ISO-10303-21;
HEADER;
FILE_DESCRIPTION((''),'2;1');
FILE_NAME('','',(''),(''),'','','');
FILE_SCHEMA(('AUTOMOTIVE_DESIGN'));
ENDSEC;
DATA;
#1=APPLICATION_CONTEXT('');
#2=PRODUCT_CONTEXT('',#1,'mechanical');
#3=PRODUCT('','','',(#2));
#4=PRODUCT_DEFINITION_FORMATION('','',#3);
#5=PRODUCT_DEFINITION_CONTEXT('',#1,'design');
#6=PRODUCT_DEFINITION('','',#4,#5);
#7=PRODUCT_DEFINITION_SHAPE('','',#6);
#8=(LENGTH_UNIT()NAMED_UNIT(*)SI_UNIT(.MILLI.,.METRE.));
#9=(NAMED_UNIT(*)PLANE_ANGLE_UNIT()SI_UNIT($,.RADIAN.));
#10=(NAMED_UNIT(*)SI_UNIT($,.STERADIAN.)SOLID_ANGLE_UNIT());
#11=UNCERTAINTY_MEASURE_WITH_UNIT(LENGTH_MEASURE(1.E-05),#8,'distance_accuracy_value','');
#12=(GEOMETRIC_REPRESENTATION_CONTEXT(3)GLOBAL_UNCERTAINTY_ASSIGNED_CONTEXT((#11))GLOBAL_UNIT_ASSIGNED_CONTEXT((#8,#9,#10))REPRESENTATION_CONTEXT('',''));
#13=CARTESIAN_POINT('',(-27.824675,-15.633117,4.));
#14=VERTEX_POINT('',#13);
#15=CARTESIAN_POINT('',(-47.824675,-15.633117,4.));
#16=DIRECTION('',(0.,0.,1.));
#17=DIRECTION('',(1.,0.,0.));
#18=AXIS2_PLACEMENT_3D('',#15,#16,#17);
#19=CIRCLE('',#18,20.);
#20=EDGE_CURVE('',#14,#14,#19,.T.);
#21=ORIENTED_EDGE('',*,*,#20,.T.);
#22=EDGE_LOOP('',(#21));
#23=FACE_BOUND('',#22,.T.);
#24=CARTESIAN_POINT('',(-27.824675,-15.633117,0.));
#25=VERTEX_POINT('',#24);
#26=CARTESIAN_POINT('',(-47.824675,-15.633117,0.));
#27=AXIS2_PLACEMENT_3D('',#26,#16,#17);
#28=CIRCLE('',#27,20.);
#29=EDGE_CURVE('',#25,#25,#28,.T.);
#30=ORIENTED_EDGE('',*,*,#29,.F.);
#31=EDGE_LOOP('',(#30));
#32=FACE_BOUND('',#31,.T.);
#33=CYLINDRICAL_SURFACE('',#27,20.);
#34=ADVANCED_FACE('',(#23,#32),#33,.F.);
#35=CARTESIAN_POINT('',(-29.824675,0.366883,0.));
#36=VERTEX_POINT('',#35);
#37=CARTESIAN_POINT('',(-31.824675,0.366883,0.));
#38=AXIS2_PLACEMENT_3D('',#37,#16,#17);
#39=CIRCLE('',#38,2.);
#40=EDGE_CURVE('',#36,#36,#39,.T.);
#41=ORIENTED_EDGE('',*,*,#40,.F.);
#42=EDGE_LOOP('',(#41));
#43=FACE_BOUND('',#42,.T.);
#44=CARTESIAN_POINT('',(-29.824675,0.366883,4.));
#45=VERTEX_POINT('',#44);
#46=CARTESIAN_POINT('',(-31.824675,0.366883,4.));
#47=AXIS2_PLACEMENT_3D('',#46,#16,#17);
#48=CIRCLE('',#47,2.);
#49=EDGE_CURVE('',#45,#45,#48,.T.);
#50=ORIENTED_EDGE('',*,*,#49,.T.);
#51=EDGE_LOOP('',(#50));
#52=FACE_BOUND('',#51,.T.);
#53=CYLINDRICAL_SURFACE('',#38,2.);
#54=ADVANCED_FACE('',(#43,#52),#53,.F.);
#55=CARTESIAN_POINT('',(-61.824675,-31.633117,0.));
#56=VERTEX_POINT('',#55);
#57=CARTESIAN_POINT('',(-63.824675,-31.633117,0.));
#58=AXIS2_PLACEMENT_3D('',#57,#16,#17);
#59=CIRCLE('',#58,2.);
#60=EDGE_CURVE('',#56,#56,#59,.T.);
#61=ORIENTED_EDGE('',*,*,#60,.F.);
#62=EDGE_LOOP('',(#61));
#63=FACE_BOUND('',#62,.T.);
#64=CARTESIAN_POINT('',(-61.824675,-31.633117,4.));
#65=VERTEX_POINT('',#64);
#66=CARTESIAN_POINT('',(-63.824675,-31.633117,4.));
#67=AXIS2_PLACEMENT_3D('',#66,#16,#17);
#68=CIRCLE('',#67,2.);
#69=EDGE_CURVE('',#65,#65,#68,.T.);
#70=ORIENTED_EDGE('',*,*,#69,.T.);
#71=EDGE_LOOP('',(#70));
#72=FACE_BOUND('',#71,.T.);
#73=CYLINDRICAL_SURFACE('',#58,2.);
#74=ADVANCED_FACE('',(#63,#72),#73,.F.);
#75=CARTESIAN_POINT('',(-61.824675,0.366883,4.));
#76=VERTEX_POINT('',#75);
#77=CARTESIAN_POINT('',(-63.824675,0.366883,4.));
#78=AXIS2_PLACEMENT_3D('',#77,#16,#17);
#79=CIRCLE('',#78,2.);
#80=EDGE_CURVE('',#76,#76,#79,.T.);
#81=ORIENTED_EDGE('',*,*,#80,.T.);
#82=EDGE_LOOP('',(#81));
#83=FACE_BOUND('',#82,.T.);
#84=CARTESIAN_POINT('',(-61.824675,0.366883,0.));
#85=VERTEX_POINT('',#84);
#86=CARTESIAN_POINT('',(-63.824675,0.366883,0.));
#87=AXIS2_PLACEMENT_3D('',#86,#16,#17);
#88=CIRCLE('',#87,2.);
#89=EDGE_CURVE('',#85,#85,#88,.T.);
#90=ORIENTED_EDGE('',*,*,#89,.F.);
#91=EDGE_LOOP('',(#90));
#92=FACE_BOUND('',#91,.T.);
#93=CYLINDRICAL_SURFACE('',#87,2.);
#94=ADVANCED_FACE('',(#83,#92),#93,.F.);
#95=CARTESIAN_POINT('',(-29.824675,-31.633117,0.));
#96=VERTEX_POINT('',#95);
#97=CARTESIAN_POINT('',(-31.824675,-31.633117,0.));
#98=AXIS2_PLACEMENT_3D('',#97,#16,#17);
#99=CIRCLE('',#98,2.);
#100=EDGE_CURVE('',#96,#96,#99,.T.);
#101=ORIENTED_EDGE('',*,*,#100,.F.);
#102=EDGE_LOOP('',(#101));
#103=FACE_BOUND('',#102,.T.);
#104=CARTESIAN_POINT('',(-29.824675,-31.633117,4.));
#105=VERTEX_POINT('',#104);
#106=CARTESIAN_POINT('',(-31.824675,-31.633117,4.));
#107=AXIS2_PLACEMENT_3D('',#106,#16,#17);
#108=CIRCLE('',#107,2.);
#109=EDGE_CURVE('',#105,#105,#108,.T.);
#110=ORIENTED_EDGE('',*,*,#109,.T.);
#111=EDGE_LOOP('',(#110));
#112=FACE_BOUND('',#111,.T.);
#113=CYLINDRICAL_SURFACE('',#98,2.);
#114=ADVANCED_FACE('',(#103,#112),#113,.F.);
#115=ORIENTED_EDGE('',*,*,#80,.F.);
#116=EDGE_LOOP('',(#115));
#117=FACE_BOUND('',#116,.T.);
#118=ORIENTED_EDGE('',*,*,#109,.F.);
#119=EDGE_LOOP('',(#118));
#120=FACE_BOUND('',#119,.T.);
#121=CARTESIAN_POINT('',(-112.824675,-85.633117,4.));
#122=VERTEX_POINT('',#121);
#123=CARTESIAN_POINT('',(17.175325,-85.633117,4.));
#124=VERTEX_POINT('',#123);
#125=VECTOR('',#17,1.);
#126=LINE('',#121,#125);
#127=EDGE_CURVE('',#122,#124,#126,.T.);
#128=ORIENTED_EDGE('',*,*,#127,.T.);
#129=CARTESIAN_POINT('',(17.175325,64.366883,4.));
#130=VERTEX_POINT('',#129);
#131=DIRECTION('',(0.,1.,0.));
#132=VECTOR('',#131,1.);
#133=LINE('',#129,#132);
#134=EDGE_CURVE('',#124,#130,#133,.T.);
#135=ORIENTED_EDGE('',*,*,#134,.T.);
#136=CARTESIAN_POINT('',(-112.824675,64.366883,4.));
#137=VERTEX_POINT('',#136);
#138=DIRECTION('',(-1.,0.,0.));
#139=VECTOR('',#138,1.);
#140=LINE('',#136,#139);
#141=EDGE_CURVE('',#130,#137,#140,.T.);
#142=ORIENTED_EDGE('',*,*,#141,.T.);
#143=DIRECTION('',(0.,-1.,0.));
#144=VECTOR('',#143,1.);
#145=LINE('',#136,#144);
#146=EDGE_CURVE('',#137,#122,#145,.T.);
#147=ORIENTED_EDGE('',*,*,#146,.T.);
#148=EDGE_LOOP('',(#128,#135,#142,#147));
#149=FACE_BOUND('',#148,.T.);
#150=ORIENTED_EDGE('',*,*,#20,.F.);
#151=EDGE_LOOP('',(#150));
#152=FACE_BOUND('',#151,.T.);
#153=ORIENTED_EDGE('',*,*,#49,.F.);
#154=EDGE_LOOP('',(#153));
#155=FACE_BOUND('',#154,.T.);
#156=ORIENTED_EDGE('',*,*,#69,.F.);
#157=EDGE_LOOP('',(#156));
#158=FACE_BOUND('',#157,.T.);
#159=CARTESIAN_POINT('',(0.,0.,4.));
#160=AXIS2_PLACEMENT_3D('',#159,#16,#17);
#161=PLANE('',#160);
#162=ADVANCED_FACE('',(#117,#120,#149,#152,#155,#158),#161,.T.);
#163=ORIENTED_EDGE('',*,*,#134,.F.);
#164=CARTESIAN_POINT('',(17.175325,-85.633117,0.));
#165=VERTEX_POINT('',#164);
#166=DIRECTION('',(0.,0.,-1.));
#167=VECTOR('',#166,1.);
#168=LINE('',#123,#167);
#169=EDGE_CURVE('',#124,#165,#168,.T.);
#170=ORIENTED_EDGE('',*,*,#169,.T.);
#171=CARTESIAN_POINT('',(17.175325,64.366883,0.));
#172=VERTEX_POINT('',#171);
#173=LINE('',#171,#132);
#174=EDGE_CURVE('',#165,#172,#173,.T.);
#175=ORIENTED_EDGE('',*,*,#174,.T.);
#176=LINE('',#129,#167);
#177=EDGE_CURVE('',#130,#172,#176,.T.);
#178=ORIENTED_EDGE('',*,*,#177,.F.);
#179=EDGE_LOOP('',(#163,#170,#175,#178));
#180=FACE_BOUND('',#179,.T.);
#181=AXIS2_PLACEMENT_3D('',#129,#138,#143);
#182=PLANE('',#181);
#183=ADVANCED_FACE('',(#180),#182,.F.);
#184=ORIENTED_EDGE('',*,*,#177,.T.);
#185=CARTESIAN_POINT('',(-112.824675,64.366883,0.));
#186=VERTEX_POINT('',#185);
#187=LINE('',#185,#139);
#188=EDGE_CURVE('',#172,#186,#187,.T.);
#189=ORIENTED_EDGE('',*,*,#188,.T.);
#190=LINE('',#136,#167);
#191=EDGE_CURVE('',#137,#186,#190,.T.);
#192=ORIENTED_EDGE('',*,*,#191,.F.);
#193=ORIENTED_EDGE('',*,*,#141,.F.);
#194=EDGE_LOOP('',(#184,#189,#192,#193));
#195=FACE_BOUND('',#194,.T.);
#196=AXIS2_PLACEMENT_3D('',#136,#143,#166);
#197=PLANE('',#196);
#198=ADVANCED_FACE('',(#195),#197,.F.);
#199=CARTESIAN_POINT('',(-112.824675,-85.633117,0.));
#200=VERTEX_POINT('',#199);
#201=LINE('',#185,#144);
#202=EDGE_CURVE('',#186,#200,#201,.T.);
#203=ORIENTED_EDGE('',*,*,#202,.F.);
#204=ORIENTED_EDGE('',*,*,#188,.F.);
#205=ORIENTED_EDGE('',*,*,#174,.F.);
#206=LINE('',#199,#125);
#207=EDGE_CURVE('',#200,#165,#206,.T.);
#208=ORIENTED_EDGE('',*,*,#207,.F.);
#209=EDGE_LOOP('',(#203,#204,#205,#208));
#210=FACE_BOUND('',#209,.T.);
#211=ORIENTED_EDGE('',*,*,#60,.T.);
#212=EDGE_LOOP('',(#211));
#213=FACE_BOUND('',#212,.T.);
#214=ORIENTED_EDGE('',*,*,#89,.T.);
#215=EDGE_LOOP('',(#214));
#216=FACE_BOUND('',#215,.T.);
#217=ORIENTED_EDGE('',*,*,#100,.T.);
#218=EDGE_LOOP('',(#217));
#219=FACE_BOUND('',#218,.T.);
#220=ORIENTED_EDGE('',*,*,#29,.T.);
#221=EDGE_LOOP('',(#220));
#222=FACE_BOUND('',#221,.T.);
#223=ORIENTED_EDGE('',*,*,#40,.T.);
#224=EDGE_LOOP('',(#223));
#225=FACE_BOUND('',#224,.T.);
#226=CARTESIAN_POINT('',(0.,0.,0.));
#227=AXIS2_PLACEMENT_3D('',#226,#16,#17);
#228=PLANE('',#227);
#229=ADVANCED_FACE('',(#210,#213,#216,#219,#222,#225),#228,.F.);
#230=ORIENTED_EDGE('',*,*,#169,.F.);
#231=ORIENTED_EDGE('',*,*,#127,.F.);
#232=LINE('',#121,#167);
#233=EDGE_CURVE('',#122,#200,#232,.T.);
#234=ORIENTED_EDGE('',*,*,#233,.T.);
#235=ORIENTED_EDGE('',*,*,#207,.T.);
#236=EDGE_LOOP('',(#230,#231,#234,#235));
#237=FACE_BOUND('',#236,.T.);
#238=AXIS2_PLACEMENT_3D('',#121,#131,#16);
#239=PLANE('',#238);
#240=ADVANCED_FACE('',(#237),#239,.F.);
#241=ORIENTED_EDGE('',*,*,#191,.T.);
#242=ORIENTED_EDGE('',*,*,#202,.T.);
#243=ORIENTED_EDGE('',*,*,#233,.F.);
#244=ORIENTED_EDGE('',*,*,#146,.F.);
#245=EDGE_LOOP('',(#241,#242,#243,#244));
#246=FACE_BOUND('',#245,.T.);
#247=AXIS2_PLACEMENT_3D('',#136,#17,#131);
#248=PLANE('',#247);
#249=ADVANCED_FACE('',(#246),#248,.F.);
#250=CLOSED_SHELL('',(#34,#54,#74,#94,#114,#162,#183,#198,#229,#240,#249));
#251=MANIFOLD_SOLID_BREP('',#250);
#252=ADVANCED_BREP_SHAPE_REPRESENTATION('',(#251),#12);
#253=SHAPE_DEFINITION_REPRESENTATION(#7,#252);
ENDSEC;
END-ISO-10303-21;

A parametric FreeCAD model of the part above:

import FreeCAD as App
import Part
import Sketcher
from FreeCAD import Vector
Q = App.Units.Quantity


def add_polygon(sketch, points):
    """Adds a closed chain of lines whose ends are joined by coincident constraints."""
    first, n = sketch.GeometryCount, len(points)
    for a, b in zip(points, points[1:] + points[:1]):
        sketch.addGeometry(Part.LineSegment(App.Vector(*a, 0), App.Vector(*b, 0)), False)
    for i in range(n):
        sketch.addConstraint(Sketcher.Constraint("Coincident", first + i, 2, first + (i + 1) % n, 1))

doc = App.newDocument("Part")
body = doc.addObject("PartDesign::Body", "Body")

# Sketch on XY plane
sketch1 = body.newObject("Sketcher::SketchObject", "Sketch")
sketch1.AttachmentSupport = (doc.getObject("XY_Plane"), [""])
sketch1.MapMode = "FlatFace"
add_polygon(sketch1, [(-113, 64), (-113, -86), (17, -86), (17, 64)])  # lines 0-3
sketch1.addConstraint([
    Sketcher.Constraint("Vertical", 0),
    Sketcher.Constraint("Horizontal", 1),
    Sketcher.Constraint("Vertical", 2),
    Sketcher.Constraint("Horizontal", 3),
    Sketcher.Constraint("DistanceX", 1, 1, 1, 2, Q("130 mm")),
    Sketcher.Constraint("DistanceY", 0, 2, 0, 1, Q("150 mm")),
    Sketcher.Constraint("DistanceX", 0, 2, -1, 1, Q("112.824675 mm")),
    Sketcher.Constraint("DistanceY", 0, 2, -1, 1, Q("85.633117 mm")),
])
pad1 = body.newObject("PartDesign::Pad", "Pad")
pad1.Profile = sketch1
pad1.Length = 4

# Sketch on XY plane
sketch2 = body.newObject("Sketcher::SketchObject", "Sketch001")
sketch2.AttachmentSupport = (doc.getObject("XY_Plane"), [""])
sketch2.MapMode = "FlatFace"
sketch2.AttachmentOffset = App.Placement(Vector(0, 0, 4), App.Rotation())
sketch2.addGeometry(Part.Circle(Vector(-48, -16, 0), Vector(0, 0, 1), 20), False)
sketch2.addConstraint([
    Sketcher.Constraint("Diameter", 0, Q("40 mm")),
    Sketcher.Constraint("DistanceX", 0, 3, -1, 1, Q("47.824675 mm")),
    Sketcher.Constraint("DistanceY", 0, 3, -1, 1, Q("15.633117 mm")),
])
pocket1 = body.newObject("PartDesign::Pocket", "Pocket")
pocket1.Profile = sketch2
pocket1.Length = 4

# Sketch on XY plane
sketch3 = body.newObject("Sketcher::SketchObject", "Sketch002")
sketch3.AttachmentSupport = (doc.getObject("XY_Plane"), [""])
sketch3.MapMode = "FlatFace"
sketch3.AttachmentOffset = App.Placement(Vector(0, 0, 4), App.Rotation())
sketch3.addGeometry([
    Part.Circle(Vector(-63.8, 0.4, 0), Vector(0, 0, 1), 2),
    Part.Circle(Vector(-31.8, 0.4, 0), Vector(0, 0, 1), 2),
    Part.Circle(Vector(-31.8, -31.6, 0), Vector(0, 0, 1), 2),
    Part.Circle(Vector(-63.8, -31.6, 0), Vector(0, 0, 1), 2),
], False)
sketch3.addConstraint([
    Sketcher.Constraint("Equal", 0, 1),
    Sketcher.Constraint("Equal", 1, 2),
    Sketcher.Constraint("Equal", 2, 3),
    Sketcher.Constraint("Horizontal", 0, 3, 1, 3),
    Sketcher.Constraint("Horizontal", 2, 3, 3, 3),
    Sketcher.Constraint("Vertical", 1, 3, 2, 3),
    Sketcher.Constraint("Vertical", 0, 3, 3, 3),
    Sketcher.Constraint("Diameter", 0, Q("4 mm")),
    Sketcher.Constraint("DistanceX", 0, 3, 1, 3, Q("32 mm")),
    Sketcher.Constraint("DistanceY", 2, 3, 1, 3, Q("32 mm")),
    Sketcher.Constraint("DistanceX", 0, 3, -1, 1, Q("63.824675 mm")),
    Sketcher.Constraint("DistanceY", -1, 1, 0, 3, Q("0.366883 mm")),
])
pocket2 = body.newObject("PartDesign::Pocket", "Pocket001")
pocket2.Profile = sketch3
pocket2.Length = 4

doc.recompute()
